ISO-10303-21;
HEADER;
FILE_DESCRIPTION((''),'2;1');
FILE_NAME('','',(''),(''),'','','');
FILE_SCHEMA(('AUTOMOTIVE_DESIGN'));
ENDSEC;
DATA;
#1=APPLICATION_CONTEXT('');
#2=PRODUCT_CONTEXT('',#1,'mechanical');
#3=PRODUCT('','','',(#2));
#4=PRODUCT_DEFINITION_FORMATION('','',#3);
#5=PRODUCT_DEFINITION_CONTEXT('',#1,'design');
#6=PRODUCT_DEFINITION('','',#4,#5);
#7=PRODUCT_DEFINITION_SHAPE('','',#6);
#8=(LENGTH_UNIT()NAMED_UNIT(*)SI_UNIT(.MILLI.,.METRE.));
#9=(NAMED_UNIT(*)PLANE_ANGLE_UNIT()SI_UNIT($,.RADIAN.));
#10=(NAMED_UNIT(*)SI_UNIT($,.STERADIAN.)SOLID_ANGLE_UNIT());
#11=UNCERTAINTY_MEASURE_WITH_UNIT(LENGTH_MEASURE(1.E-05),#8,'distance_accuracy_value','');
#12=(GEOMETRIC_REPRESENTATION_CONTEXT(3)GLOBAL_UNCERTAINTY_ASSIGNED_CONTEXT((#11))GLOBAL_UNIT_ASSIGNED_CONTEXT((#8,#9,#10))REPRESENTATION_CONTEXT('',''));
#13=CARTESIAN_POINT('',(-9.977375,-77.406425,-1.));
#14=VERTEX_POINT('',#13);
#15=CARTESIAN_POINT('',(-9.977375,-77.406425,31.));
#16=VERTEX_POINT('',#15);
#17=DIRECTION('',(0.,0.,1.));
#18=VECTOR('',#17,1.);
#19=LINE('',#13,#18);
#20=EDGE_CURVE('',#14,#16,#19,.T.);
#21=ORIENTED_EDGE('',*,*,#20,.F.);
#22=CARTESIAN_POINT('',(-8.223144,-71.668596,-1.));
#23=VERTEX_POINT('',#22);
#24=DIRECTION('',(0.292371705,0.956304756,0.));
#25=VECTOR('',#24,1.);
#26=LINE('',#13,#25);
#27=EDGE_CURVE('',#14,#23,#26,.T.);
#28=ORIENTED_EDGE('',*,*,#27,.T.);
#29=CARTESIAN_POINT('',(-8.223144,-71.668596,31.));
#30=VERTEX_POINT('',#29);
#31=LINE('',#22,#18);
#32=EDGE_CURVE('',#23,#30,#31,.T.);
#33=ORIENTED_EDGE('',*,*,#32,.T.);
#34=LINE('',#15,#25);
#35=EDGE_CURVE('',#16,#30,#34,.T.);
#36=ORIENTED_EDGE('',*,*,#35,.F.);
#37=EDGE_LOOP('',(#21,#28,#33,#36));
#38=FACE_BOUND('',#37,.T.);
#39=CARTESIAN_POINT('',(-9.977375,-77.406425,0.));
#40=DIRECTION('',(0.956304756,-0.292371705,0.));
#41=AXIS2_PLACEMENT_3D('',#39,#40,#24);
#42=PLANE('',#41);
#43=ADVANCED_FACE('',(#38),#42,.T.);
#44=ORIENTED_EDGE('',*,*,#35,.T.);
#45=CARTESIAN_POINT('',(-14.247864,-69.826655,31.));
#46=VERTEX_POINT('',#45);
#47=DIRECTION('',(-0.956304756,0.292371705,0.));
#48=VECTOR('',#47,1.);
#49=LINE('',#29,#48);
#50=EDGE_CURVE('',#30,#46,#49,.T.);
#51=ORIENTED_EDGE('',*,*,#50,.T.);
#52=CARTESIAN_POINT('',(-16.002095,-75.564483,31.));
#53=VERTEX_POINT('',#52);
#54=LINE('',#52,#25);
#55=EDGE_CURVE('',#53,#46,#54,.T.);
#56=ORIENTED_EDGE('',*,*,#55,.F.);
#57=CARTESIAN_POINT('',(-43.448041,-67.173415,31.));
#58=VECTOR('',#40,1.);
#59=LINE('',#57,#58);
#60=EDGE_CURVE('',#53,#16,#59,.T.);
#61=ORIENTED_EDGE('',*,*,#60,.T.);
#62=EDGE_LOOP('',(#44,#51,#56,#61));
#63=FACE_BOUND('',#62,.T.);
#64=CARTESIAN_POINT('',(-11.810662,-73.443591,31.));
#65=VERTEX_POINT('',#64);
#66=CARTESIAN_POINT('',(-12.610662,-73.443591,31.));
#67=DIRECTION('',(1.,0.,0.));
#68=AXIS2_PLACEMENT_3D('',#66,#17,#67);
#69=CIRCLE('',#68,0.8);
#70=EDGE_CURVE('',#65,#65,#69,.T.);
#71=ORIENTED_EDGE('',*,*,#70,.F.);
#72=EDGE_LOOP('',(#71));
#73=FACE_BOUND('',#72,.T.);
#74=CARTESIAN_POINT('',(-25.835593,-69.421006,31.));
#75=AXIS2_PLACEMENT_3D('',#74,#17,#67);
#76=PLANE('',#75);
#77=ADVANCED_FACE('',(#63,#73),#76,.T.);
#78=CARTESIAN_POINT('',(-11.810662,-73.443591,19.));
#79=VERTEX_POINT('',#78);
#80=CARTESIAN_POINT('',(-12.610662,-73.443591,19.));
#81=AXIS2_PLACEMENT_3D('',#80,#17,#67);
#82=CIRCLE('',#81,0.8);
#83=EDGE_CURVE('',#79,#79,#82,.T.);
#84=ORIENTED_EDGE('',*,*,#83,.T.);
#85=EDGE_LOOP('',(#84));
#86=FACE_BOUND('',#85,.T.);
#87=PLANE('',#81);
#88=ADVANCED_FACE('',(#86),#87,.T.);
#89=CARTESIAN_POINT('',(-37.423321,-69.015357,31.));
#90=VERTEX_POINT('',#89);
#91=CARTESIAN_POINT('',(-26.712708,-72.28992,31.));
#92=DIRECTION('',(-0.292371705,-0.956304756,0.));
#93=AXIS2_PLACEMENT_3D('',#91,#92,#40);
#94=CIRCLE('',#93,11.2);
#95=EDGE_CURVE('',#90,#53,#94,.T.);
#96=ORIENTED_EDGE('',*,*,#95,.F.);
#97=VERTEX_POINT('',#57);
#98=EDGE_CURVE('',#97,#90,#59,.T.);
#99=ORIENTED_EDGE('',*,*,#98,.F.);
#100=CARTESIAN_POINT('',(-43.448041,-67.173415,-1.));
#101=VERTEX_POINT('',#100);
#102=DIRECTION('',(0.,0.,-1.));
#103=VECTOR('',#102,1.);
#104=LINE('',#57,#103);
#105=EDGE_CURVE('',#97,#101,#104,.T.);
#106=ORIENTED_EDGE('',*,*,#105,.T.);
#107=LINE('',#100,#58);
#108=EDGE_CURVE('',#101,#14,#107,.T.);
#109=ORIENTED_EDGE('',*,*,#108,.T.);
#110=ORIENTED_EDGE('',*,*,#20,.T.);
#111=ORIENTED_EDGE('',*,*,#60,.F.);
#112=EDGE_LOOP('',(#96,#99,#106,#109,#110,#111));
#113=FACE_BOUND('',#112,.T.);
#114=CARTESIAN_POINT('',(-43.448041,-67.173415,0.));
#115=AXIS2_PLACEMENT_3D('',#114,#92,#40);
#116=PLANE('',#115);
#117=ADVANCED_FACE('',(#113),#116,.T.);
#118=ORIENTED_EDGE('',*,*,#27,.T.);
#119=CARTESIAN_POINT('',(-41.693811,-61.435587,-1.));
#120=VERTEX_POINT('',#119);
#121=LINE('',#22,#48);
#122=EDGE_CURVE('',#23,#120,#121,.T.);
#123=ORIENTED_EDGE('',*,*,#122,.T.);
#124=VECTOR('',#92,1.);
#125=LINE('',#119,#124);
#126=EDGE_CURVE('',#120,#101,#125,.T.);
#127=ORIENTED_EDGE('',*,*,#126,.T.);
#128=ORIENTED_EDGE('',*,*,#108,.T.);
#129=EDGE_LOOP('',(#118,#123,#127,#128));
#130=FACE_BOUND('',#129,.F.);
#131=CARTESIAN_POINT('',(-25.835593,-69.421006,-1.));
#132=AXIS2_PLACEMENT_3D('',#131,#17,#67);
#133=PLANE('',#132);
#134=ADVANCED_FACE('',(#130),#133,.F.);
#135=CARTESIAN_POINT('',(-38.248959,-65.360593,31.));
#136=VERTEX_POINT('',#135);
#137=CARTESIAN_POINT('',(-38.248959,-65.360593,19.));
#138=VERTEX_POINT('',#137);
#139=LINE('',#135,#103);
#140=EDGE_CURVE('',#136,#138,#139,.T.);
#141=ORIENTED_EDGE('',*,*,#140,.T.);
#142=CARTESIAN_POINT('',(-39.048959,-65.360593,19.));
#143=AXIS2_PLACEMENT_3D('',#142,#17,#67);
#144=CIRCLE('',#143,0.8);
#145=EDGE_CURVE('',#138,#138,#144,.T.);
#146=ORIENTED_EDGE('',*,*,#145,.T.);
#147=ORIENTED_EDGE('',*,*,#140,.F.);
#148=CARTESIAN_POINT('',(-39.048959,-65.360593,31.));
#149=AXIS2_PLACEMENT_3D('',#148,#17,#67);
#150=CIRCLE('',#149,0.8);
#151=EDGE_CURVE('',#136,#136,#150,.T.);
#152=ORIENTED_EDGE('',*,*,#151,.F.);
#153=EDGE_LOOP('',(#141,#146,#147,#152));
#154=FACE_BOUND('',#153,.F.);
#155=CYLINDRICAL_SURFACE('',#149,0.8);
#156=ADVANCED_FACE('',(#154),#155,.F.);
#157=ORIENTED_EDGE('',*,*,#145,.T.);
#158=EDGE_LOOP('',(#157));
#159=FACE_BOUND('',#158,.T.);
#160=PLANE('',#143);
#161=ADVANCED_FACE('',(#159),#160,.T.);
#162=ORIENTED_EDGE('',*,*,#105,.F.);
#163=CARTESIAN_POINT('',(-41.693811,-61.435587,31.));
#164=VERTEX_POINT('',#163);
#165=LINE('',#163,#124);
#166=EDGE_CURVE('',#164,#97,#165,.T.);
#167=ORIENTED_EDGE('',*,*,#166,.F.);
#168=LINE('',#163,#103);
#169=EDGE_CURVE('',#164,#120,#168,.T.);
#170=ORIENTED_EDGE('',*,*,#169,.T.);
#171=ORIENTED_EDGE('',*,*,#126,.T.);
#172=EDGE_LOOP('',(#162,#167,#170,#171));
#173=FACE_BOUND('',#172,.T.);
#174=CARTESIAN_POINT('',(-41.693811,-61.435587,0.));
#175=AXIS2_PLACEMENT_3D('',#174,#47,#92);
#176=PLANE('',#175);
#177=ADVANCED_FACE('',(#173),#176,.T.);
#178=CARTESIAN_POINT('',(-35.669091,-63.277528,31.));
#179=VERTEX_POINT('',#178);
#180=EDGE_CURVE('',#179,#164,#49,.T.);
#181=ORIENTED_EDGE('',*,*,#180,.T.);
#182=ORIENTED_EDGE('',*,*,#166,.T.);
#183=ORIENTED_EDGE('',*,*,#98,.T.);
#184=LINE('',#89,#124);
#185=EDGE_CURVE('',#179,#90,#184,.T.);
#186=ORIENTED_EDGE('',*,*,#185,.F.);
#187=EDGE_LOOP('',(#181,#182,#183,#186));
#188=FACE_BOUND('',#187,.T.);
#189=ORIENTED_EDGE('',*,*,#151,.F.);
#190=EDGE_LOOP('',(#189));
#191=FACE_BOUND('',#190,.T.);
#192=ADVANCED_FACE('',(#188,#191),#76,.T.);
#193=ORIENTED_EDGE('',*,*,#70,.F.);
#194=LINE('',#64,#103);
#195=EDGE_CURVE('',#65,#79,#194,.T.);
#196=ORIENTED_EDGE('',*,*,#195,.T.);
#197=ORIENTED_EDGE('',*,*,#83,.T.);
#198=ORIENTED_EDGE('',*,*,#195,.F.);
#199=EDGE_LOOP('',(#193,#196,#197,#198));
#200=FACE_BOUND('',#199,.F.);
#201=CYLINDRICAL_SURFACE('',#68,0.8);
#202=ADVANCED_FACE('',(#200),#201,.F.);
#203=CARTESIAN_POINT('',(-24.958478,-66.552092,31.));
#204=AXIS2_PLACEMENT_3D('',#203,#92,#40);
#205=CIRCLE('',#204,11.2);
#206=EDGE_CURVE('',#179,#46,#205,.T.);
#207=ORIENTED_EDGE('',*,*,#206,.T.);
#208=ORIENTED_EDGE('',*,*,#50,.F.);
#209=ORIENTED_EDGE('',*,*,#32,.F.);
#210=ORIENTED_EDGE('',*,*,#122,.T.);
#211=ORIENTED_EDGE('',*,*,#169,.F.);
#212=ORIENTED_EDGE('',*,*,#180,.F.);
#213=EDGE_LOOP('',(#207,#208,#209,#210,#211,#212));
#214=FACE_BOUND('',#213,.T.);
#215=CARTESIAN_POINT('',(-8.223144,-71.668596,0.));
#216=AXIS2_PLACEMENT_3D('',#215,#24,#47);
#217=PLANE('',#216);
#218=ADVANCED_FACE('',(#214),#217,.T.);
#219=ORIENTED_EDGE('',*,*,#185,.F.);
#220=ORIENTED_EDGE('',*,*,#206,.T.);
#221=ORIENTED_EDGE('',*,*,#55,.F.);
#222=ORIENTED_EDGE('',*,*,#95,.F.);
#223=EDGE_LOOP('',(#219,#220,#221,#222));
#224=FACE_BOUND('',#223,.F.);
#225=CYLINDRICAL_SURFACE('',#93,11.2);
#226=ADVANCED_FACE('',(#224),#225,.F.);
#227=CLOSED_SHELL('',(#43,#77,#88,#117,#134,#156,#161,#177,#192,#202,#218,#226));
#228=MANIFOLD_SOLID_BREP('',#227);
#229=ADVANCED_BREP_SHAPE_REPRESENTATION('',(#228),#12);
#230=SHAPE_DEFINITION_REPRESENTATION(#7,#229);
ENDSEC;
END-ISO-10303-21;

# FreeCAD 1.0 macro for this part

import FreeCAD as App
import Part
import Sketcher
from FreeCAD import Vector
Q = App.Units.Quantity


def add_polygon(sketch, points):
    """Adds a closed chain of lines whose ends are joined by coincident constraints."""
    first, n = sketch.GeometryCount, len(points)
    for a, b in zip(points, points[1:] + points[:1]):
        sketch.addGeometry(Part.LineSegment(App.Vector(*a, 0), App.Vector(*b, 0)), False)
    for i in range(n):
        sketch.addConstraint(Sketcher.Constraint("Coincident", first + i, 2, first + (i + 1) % n, 1))

doc = App.newDocument("Part")
body = doc.addObject("PartDesign::Body", "Body")

sketch1 = doc.addObject("Sketcher::SketchObject", "Sketch")
body.addObject(sketch1)
sketch1.AttachmentSupport = (doc.XY_Plane, [""])
sketch1.MapMode = "FlatFace"
add_polygon(sketch1, [(-43, -67), (-10, -77), (-8, -72), (-42, -61)])
sketch1.addConstraint([
    Sketcher.Constraint("Perpendicular", 0, 1),
    Sketcher.Constraint("Perpendicular", 1, 2),
    Sketcher.Constraint("Perpendicular", 2, 3),
    Sketcher.Constraint("Angle", 0, Q("-17 deg")),
    Sketcher.Constraint("Distance", 0, Q("35 mm")),
    Sketcher.Constraint("Distance", 1, Q("6 mm")),
    Sketcher.Constraint("DistanceX", 2, 2, -1, 1, Q("41.693811 mm")),
    Sketcher.Constraint("DistanceY", 0, 2, -1, 1, Q("77.406425 mm")),
])
pad1 = doc.addObject("PartDesign::Pad", "Pad")
body.addObject(pad1)
pad1.Profile = sketch1
pad1.Type = "TwoLengths"
pad1.Length = 31
pad1.Length2 = 1

sketch2 = doc.addObject("Sketcher::SketchObject", "Sketch001")
body.addObject(sketch2)
sketch2.Placement = App.Placement(Vector(-22.49544, -73.579268, 0), App.Rotation(Vector(0.956304756, -0.292371705, 0), Vector(0, 0, 1), Vector(-0.292371705, -0.956304756, 0), "ZXY"))
sketch2.addGeometry(Part.Circle(Vector(-4, 31, 0), Vector(0, 0, 1), 11), False)
sketch2.addConstraint([
    Sketcher.Constraint("Diameter", 0, Q("22.4 mm")),
    Sketcher.Constraint("DistanceY", -1, 1, 0, 3, Q("31 mm")),
    Sketcher.Constraint("DistanceX", 0, 3, -1, 1, Q("4.409962 mm")),
])
pocket1 = doc.addObject("PartDesign::Pocket", "Pocket")
body.addObject(pocket1)
pocket1.Profile = sketch2
pocket1.Type = "ThroughAll"

sketch3 = doc.addObject("Sketcher::SketchObject", "Sketch002")
body.addObject(sketch3)
sketch3.AttachmentSupport = (doc.XY_Plane, [""])
sketch3.MapMode = "FlatFace"
sketch3.AttachmentOffset = App.Placement(Vector(0, 0, 31), App.Rotation())
sketch3.addGeometry([
    Part.Circle(Vector(-12.6, -73.4, 0), Vector(0, 0, 1), 0.8),
    Part.Circle(Vector(-39, -65.4, 0), Vector(0, 0, 1), 0.8),
], False)
sketch3.addConstraint([
    Sketcher.Constraint("Equal", 0, 1),
    Sketcher.Constraint("Diameter", 0, Q("1.6 mm")),
    Sketcher.Constraint("DistanceY", 0, 3, 1, 3, Q("8.082999 mm")),
    Sketcher.Constraint("DistanceX", 0, 3, -1, 1, Q("12.610662 mm")),
    Sketcher.Constraint("DistanceY", 0, 3, -1, 1, Q("73.443591 mm")),
    Sketcher.Constraint("DistanceX", 1, 3, -1, 1, Q("39.048959 mm")),
])
pocket2 = doc.addObject("PartDesign::Pocket", "Pocket001")
body.addObject(pocket2)
pocket2.Profile = sketch3
pocket2.Length = 12

doc.recompute()
